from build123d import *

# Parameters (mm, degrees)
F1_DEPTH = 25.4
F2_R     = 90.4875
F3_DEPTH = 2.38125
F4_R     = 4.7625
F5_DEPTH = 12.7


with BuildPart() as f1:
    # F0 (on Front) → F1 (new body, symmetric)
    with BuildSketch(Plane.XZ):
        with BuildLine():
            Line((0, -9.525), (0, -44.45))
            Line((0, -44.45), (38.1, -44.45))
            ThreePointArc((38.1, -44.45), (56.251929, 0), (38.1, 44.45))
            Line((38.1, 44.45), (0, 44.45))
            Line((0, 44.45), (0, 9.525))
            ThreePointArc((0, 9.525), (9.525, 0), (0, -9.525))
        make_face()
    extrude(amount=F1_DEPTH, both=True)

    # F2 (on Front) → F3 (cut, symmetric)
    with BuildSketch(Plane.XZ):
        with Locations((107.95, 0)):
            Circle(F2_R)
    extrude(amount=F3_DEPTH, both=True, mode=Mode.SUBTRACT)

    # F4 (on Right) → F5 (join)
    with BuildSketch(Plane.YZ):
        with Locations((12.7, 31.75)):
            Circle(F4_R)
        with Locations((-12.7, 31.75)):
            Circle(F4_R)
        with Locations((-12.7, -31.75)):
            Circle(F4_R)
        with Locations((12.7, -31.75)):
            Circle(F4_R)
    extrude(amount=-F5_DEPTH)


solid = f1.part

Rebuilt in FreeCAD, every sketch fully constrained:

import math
import FreeCAD as App
import Part
import Sketcher
Q = App.Units.Quantity

doc = App.newDocument("Part")
params = doc.addObject("Spreadsheet::Sheet", "Params")
for row, (alias, value) in enumerate([
    ("sketch1_radius", "2.5 in"),
    ("sketch1_width", "1.5 in"),
    ("sketch1_radius2", "0.375 in"),
    ("pad1_length", "2 in"),
    ("sketch2_diameter", "7.125 in"),
    ("pocket1_length", "0.1875 in"),
    ("sketch3_diameter", "0.375 in"),
    ("pad2_length", "0.5 in"),
], start=1):
    params.set(f"A{row}", alias)
    params.set(f"B{row}", "=" + value)
    params.setAlias(f"B{row}", alias)

body = doc.addObject("PartDesign::Body", "Body")

sketch1 = body.newObject("Sketcher::SketchObject", "Sketch")
sketch1.AttachmentSupport = (doc.getObject("XZ_Plane"), [""])
sketch1.MapMode = "FlatFace"
sketch1.addGeometry([
    Part.LineSegment(App.Vector(0, -10, 0), App.Vector(0, -44, 0)),
    Part.LineSegment(App.Vector(0, -44, 0), App.Vector(38, -44, 0)),
    Part.ArcOfCircle(Part.Circle(App.Vector(-7, 0, 0), App.Vector(0, 0, 1), 64), math.radians(-44), math.radians(44)),
    Part.LineSegment(App.Vector(38, 44, 0), App.Vector(0, 44, 0)),
    Part.LineSegment(App.Vector(0, 44, 0), App.Vector(0, 10, 0)),
    Part.ArcOfCircle(Part.Circle(App.Vector(0, 0, 0), App.Vector(0, 0, 1), 10), math.radians(-90), math.radians(90)),
], False)
sketch1.addConstraint([
    Sketcher.Constraint("Coincident", 0, 2, 1, 1),
    Sketcher.Constraint("Coincident", 1, 2, 2, 1),
    Sketcher.Constraint("Coincident", 2, 2, 3, 1),
    Sketcher.Constraint("Coincident", 3, 2, 4, 1),
    Sketcher.Constraint("Coincident", 4, 2, 5, 2),
    Sketcher.Constraint("Coincident", 5, 1, 0, 1),
    Sketcher.Constraint("Vertical", 0),
    Sketcher.Constraint("Horizontal", 1),
    Sketcher.Constraint("Horizontal", 3),
    Sketcher.Constraint("Vertical", 4),
    Sketcher.Constraint("Coincident", 5, 3, -1, 1),
    Sketcher.Constraint("Symmetric", 0, 2, 3, 2, -1, 1),
    Sketcher.Constraint("PointOnObject", 2, 3, -1),
    Sketcher.Constraint("PointOnObject", 0, 2, -2),
    Sketcher.Constraint("Radius", 2, Q("2.5 in")),
    Sketcher.Constraint("DistanceX", 1, 1, 1, 2, Q("1.5 in")),
    Sketcher.Constraint("Radius", 5, Q("0.375 in")),
    Sketcher.Constraint("DistanceY", 1, 2, 2, 2, Q("3.5 in")),
])
sketch1.setExpression("Constraints[14]", "Params.sketch1_radius")
sketch1.setExpression("Constraints[15]", "Params.sketch1_width")
sketch1.setExpression("Constraints[16]", "Params.sketch1_radius2")
pad1 = body.newObject("PartDesign::Pad", "Pad")
pad1.Profile = sketch1
pad1.setExpression("Length", "Params.pad1_length")
pad1.Midplane = True

sketch2 = body.newObject("Sketcher::SketchObject", "Sketch001")
sketch2.AttachmentSupport = (doc.getObject("XZ_Plane"), [""])
sketch2.MapMode = "FlatFace"
sketch2.addGeometry(Part.Circle(App.Vector(108, 0, 0), App.Vector(0, 0, 1), 90), False)
sketch2.addConstraint([
    Sketcher.Constraint("PointOnObject", 0, 3, -1),
    Sketcher.Constraint("Diameter", 0, Q("7.125 in")),
    Sketcher.Constraint("DistanceX", -1, 1, 0, 3, Q("4.25 in")),
])
sketch2.setExpression("Constraints[1]", "Params.sketch2_diameter")
pocket1 = body.newObject("PartDesign::Pocket", "Pocket")
pocket1.Profile = sketch2
pocket1.setExpression("Length", "Params.pocket1_length")
pocket1.Midplane = True

sketch3 = body.newObject("Sketcher::SketchObject", "Sketch002")
sketch3.AttachmentSupport = (doc.getObject("YZ_Plane"), [""])
sketch3.MapMode = "FlatFace"
sketch3.addGeometry([
    Part.Circle(App.Vector(12.7, 31.8, 0), App.Vector(0, 0, 1), 4.8),
    Part.Circle(App.Vector(-12.7, 31.8, 0), App.Vector(0, 0, 1), 4.8),
    Part.Circle(App.Vector(-12.7, -31.8, 0), App.Vector(0, 0, 1), 4.8),
    Part.Circle(App.Vector(12.7, -31.8, 0), App.Vector(0, 0, 1), 4.8),
], False)
sketch3.addConstraint([
    Sketcher.Constraint("Equal", 0, 1),
    Sketcher.Constraint("Equal", 1, 2),
    Sketcher.Constraint("Equal", 2, 3),
    Sketcher.Constraint("Symmetric", 0, 3, 2, 3, -1, 1),
    Sketcher.Constraint("Symmetric", 1, 3, 3, 3, -1, 1),
    Sketcher.Constraint("Symmetric", 0, 3, 1, 3, -2),
    Sketcher.Constraint("Diameter", 0, Q("0.375 in")),
    Sketcher.Constraint("DistanceX", 1, 3, 0, 3, Q("1 in")),
    Sketcher.Constraint("DistanceY", 2, 3, 1, 3, Q("2.5 in")),
])
sketch3.setExpression("Constraints[6]", "Params.sketch3_diameter")
pad2 = body.newObject("PartDesign::Pad", "Pad001")
pad2.Profile = sketch3
pad2.setExpression("Length", "Params.pad2_length")
pad2.Reversed = True

doc.recompute()
